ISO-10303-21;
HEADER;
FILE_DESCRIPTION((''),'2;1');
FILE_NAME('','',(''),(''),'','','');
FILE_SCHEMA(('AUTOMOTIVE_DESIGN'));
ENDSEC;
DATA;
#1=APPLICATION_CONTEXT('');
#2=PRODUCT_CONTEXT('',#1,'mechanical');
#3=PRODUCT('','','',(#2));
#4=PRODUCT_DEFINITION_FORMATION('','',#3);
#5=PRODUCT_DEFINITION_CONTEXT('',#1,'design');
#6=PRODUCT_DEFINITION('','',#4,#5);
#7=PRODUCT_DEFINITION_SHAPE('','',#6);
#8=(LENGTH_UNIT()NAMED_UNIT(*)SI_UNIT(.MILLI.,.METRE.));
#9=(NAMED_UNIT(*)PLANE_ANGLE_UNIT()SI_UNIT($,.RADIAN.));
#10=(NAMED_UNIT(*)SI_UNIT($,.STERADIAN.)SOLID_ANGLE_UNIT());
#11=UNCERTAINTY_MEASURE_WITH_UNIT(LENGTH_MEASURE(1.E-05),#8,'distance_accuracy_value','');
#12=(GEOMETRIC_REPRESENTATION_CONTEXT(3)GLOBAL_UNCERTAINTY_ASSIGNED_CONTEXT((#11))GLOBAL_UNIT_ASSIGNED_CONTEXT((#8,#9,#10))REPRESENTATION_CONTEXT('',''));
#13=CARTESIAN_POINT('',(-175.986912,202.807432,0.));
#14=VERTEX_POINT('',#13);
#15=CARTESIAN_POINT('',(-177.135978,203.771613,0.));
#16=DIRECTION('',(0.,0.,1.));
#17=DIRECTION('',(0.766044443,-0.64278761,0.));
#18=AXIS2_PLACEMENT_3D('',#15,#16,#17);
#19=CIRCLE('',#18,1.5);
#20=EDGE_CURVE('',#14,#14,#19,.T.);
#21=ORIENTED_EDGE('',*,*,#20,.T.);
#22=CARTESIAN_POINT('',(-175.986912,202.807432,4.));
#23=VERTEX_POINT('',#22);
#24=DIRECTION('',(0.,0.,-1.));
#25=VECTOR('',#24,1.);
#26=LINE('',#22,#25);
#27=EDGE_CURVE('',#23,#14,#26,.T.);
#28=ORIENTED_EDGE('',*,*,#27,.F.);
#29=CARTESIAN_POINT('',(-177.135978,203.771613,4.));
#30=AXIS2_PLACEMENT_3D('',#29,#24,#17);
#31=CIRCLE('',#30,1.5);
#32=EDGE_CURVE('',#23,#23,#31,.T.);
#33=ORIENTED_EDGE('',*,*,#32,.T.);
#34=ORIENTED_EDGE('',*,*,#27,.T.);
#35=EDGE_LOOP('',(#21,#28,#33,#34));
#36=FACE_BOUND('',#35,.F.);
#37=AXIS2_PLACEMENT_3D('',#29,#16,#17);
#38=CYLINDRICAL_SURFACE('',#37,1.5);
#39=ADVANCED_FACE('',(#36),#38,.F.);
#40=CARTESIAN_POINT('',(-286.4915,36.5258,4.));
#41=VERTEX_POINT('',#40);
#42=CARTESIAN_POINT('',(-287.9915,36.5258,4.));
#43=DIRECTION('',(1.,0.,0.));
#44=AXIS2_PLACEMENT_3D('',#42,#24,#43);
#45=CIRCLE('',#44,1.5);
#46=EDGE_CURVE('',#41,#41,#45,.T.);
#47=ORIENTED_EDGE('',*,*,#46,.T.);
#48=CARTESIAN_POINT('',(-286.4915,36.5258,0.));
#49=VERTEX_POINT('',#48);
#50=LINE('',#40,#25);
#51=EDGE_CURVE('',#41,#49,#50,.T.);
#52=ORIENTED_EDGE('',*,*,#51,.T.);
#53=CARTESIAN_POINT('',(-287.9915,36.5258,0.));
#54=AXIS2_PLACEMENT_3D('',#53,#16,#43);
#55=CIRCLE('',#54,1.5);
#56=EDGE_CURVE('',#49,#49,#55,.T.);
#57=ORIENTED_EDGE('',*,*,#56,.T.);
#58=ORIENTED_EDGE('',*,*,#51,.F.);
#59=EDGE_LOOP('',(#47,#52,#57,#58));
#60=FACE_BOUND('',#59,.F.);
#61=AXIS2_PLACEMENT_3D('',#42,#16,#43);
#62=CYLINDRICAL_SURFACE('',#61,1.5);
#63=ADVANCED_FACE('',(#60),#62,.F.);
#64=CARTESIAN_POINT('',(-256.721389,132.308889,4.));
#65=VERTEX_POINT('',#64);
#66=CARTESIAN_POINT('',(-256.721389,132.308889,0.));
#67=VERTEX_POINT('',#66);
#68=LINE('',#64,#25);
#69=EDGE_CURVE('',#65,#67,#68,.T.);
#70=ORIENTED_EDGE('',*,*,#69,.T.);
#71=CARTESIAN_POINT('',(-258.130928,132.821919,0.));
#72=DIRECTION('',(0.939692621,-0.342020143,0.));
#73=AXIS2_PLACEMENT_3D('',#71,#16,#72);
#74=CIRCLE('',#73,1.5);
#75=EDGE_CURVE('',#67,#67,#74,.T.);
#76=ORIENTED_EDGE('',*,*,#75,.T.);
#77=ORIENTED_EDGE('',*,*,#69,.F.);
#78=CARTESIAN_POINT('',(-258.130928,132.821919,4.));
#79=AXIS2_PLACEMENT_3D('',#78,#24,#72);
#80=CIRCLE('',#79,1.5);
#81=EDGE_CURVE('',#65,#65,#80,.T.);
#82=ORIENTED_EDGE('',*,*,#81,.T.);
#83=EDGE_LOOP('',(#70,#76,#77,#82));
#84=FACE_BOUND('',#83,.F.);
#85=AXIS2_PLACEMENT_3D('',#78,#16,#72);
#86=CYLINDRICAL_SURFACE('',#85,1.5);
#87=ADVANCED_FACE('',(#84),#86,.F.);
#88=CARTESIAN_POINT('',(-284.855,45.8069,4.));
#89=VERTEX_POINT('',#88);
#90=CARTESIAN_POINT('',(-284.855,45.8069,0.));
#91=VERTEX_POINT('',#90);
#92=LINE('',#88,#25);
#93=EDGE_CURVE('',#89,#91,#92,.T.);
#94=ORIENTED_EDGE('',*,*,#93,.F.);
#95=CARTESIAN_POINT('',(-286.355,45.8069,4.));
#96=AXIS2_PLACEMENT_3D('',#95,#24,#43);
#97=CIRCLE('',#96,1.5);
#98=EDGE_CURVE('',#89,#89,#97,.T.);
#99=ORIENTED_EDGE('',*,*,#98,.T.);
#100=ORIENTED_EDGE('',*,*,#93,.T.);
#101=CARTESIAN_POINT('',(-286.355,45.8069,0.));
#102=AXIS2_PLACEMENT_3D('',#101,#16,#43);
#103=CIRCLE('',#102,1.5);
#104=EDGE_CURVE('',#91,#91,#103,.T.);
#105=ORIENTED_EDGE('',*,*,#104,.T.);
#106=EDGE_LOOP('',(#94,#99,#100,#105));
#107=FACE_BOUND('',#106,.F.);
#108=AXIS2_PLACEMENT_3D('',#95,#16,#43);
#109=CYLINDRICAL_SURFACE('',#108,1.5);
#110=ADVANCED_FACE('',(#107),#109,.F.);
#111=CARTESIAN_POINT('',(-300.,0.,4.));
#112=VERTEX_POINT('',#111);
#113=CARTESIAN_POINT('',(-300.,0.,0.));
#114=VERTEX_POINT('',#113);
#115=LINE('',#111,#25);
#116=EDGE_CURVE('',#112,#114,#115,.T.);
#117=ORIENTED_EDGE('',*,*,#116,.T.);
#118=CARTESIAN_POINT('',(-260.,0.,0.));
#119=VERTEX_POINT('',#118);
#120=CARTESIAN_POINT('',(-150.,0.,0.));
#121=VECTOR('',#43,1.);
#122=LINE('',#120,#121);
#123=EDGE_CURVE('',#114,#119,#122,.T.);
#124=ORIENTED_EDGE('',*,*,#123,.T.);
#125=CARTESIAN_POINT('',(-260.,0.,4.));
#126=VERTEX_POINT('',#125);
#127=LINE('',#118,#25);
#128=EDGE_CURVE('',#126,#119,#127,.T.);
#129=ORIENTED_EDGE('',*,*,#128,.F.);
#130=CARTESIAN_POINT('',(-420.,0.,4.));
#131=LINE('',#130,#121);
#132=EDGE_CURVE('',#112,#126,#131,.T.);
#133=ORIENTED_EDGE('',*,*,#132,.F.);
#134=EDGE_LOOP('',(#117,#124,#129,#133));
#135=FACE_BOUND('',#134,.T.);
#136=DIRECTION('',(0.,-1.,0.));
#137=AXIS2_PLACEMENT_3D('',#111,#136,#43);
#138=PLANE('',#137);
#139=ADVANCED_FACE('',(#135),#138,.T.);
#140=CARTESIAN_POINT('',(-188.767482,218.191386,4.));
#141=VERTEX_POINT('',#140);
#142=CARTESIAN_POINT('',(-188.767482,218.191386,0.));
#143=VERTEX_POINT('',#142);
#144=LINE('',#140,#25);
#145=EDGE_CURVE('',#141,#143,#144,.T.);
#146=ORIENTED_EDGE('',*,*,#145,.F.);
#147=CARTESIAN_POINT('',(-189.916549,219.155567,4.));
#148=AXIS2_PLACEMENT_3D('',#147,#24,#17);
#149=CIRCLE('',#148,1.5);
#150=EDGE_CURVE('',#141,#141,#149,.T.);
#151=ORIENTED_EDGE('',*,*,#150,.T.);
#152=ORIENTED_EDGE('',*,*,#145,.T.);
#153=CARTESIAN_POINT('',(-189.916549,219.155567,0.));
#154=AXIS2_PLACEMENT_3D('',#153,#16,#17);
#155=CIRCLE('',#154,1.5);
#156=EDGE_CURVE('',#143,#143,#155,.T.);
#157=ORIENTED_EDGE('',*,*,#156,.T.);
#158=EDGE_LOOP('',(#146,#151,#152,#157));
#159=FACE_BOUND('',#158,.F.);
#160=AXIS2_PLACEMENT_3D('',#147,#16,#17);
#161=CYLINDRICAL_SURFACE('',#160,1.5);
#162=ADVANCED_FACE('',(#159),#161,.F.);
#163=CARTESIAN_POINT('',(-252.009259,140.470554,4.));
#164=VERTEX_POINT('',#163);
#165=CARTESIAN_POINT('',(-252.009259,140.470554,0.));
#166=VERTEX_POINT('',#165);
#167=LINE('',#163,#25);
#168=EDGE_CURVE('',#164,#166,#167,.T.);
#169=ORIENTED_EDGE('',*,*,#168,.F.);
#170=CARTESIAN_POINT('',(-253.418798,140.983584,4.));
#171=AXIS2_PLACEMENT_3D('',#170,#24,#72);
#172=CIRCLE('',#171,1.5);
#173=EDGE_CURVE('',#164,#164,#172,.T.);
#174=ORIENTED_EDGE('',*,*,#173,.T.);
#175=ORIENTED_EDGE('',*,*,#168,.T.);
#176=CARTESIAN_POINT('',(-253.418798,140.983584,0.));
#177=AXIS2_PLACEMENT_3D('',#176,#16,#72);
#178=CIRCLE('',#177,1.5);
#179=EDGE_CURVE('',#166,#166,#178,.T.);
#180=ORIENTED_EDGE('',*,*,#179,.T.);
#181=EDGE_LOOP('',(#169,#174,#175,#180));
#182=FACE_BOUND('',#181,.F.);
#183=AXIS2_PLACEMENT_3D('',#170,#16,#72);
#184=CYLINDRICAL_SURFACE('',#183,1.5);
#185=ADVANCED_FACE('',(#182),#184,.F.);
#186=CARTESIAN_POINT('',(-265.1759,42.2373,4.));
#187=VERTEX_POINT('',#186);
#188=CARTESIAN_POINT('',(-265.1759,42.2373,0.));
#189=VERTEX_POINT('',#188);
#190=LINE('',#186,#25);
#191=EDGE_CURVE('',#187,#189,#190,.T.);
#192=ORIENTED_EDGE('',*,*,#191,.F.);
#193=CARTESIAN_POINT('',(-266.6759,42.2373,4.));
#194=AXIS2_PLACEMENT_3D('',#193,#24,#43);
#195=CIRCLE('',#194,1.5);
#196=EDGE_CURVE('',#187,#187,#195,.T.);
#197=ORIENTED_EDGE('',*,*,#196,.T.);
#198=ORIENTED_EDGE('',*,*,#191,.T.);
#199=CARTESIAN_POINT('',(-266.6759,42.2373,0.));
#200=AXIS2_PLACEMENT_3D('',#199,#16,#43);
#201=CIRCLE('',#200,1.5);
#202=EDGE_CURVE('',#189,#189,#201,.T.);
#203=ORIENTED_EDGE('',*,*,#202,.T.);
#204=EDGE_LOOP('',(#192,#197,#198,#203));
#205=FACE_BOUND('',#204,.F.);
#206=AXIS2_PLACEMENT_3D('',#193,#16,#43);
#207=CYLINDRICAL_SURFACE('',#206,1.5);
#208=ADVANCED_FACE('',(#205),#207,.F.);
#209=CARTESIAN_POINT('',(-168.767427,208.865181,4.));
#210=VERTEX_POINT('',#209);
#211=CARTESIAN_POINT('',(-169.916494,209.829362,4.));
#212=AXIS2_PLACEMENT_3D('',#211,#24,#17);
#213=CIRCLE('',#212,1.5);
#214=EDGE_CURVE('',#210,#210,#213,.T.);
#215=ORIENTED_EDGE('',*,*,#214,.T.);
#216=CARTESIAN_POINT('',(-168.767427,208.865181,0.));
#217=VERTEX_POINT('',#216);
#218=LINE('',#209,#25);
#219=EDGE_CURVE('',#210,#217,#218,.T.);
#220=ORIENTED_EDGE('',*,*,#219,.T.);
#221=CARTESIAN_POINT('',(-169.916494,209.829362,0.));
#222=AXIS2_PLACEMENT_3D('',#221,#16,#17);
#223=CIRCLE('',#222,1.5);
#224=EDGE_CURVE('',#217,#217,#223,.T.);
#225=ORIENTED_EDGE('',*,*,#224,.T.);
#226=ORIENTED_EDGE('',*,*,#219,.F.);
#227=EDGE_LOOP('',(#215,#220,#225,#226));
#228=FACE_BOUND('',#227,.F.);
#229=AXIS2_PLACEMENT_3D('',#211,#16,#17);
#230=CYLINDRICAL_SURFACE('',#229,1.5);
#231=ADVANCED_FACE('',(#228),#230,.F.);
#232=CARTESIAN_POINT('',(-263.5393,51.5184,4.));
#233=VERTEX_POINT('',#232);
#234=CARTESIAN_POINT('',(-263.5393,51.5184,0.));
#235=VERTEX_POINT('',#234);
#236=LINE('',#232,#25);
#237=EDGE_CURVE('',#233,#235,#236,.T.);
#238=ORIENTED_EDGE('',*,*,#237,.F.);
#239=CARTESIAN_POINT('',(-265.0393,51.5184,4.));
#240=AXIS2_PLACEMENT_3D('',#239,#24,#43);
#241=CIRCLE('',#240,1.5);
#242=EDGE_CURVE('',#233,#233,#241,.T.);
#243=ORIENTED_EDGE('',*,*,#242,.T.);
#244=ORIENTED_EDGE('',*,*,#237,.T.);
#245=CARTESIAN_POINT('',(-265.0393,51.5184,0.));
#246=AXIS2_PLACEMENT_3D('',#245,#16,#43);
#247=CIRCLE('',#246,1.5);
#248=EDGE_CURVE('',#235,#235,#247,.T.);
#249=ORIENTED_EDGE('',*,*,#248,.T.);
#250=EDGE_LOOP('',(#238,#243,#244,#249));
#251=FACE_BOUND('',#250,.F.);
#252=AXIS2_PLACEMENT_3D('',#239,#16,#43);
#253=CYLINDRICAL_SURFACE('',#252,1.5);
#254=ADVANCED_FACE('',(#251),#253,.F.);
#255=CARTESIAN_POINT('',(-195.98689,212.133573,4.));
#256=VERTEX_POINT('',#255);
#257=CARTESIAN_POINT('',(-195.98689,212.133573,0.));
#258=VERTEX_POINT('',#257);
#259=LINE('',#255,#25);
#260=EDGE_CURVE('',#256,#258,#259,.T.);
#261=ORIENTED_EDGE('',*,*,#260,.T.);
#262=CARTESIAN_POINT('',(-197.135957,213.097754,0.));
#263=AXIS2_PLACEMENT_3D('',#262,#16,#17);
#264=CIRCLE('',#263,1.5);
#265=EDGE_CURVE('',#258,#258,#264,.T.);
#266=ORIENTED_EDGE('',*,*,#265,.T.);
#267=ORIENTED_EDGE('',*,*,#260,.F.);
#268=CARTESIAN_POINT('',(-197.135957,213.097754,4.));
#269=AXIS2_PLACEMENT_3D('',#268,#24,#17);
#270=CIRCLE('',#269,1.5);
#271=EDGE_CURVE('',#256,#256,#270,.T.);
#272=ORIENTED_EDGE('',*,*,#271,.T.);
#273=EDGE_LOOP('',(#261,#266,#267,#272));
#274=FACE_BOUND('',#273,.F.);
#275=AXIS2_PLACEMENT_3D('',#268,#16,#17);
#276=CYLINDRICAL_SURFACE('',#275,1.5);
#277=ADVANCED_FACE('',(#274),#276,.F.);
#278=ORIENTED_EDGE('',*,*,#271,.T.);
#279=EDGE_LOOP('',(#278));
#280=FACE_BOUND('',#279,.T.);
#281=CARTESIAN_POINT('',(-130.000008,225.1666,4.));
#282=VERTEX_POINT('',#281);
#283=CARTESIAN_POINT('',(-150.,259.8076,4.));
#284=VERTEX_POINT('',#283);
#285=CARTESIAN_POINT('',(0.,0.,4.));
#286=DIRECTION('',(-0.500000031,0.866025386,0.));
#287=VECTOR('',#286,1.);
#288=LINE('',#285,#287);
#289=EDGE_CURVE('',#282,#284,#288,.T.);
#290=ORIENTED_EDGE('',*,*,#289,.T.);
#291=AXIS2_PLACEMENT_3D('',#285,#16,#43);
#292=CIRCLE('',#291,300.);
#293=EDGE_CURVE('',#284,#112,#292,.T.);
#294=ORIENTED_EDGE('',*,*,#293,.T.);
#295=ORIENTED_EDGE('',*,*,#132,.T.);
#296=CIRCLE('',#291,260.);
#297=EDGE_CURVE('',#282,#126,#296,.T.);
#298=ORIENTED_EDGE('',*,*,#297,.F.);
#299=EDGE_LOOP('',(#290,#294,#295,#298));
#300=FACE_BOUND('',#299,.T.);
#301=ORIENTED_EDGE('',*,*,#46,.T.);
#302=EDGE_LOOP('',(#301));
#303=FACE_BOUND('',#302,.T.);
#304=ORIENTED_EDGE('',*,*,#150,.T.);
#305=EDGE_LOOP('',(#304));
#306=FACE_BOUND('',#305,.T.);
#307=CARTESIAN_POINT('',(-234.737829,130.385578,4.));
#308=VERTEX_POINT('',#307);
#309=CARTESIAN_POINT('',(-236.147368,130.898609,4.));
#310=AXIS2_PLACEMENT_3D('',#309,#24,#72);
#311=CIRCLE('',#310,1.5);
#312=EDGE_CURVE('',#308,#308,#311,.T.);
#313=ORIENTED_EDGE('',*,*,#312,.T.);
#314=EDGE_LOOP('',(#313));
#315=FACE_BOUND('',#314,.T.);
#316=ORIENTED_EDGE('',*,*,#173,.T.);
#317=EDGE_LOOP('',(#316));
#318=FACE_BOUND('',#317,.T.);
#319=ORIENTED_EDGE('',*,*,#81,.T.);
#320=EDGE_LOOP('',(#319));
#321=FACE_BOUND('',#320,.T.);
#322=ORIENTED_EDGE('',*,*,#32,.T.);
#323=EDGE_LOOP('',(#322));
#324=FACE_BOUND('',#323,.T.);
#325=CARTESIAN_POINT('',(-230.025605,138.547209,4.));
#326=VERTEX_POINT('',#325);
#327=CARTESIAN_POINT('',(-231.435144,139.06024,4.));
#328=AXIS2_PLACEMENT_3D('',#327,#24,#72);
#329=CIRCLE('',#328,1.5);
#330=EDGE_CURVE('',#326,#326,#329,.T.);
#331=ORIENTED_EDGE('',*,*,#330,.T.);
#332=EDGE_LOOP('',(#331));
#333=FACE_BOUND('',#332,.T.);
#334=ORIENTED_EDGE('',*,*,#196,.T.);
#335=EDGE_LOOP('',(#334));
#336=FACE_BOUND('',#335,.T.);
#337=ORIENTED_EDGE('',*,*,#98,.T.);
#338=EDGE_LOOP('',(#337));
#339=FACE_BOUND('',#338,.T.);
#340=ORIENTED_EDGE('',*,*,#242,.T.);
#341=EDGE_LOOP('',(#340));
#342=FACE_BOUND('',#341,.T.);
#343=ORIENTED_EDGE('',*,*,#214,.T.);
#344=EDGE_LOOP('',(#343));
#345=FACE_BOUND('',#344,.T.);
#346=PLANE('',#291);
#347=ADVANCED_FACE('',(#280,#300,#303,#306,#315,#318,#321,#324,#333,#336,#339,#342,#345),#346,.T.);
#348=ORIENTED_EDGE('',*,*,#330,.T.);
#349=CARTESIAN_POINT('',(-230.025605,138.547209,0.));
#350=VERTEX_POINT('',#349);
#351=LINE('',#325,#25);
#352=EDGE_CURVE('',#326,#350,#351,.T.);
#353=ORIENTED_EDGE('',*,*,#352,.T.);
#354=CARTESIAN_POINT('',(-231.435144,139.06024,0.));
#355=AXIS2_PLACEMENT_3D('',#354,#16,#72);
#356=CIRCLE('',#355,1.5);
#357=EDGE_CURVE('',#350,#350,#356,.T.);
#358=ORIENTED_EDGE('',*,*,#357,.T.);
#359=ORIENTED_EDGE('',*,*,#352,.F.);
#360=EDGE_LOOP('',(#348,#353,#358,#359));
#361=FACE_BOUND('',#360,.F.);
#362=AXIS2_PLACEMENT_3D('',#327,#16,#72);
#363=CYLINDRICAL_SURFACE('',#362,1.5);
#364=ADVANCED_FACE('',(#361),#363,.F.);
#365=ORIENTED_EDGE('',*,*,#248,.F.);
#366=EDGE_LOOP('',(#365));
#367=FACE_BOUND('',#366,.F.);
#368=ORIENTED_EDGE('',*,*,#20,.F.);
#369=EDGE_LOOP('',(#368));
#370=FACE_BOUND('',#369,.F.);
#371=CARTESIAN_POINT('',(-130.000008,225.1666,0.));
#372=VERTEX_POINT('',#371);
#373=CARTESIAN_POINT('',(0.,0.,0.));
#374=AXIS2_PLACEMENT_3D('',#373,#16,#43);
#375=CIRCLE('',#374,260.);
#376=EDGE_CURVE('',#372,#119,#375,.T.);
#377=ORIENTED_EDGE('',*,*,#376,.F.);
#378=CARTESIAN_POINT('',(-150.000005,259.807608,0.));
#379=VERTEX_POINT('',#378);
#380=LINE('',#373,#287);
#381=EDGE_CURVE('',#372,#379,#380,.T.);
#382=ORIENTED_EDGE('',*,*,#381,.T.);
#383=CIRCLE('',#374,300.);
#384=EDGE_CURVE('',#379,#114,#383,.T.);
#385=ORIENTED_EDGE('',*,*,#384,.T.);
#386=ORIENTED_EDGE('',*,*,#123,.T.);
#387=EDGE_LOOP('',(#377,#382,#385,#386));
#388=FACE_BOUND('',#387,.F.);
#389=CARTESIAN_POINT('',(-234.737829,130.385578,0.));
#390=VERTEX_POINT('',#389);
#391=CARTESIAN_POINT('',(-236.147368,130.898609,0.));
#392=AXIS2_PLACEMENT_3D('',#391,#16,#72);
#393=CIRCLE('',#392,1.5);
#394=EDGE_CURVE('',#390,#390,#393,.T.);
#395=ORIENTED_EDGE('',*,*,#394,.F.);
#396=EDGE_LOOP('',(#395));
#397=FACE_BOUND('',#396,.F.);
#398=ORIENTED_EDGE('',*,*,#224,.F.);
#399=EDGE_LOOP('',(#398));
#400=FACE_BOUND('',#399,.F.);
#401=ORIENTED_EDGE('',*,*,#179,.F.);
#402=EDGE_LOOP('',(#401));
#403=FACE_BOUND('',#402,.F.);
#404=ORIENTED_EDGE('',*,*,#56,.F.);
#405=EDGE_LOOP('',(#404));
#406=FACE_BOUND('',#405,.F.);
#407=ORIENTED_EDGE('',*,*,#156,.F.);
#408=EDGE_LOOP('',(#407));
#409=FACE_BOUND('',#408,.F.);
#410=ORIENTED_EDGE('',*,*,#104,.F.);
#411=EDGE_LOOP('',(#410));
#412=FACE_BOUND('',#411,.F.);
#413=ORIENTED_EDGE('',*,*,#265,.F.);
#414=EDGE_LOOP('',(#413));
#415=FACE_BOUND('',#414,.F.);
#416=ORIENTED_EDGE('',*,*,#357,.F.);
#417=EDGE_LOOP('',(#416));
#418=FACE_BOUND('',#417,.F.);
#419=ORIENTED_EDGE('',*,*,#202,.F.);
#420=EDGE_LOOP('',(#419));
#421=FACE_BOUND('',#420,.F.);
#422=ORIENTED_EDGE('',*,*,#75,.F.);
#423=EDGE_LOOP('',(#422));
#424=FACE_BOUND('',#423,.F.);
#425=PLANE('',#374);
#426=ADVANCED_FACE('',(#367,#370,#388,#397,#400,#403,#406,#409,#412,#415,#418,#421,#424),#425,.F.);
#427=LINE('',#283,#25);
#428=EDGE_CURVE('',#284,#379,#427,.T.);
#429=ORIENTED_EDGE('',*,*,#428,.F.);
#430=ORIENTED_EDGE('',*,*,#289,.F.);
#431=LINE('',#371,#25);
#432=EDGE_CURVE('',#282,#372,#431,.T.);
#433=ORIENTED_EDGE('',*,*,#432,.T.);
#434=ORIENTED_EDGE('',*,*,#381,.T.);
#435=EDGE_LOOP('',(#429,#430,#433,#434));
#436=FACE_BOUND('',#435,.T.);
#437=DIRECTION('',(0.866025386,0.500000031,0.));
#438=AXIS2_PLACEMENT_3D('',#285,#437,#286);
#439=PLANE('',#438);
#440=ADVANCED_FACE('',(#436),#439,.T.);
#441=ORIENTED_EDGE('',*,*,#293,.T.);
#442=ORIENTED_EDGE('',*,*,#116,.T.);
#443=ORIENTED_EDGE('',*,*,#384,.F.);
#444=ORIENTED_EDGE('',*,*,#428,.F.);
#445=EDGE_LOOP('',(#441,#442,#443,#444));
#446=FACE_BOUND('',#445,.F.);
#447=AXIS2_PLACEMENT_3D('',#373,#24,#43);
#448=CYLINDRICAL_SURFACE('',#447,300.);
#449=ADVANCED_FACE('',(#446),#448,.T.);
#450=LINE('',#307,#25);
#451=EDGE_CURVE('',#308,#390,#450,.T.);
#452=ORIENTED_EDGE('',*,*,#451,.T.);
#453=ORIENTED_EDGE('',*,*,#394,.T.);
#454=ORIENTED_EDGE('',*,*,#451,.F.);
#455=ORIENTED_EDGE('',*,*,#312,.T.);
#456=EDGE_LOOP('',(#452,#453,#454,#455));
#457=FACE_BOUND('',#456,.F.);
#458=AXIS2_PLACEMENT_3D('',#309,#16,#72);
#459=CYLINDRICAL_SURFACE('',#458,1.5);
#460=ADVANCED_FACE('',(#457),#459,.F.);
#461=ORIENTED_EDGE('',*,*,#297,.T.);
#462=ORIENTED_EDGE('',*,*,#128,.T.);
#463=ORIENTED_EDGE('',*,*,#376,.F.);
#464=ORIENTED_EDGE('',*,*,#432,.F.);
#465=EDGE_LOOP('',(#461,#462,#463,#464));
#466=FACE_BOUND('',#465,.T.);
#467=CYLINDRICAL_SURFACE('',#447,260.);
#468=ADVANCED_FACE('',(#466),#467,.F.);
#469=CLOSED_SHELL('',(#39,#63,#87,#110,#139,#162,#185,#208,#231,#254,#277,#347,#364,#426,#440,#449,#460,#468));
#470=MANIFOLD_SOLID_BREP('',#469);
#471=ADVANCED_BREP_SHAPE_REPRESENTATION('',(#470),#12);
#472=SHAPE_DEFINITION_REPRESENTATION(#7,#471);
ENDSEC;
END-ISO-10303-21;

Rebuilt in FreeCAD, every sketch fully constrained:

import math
import FreeCAD as App
import Part
import Sketcher
Q = App.Units.Quantity

doc = App.newDocument("Part")
body = doc.addObject("PartDesign::Body", "Body")

# Sketch on XY plane
sketch1 = body.newObject("Sketcher::SketchObject", "Sketch")
sketch1.AttachmentSupport = (doc.getObject("XY_Plane"), [""])
sketch1.MapMode = "FlatFace"
sketch1.addGeometry([
    Part.Circle(App.Vector(0, 0, 0), App.Vector(0, 0, 1), 300),
    Part.Circle(App.Vector(0, 0, 0), App.Vector(0, 0, 1), 260),
], False)
sketch1.addConstraint([
    Sketcher.Constraint("Coincident", 0, 3, -1, 1),
    Sketcher.Constraint("Coincident", 1, 3, -1, 1),
    Sketcher.Constraint("Diameter", 0, 600.0),
    Sketcher.Constraint("Diameter", 1, 520.0),
])
pad1 = body.newObject("PartDesign::Pad", "Pad")
pad1.Profile = sketch1
pad1.Length = 4

# Sketch on XY plane
sketch2 = body.newObject("Sketcher::SketchObject", "Sketch001")
sketch2.AttachmentSupport = (doc.getObject("XY_Plane"), [""])
sketch2.MapMode = "FlatFace"
sketch2.AttachmentOffset = App.Placement(App.Vector(0, 0, 4), App.Rotation())
sketch2.addGeometry([
    Part.LineSegment(App.Vector(-150, 259.8076, 0), App.Vector(0, 0, 0)),
    Part.LineSegment(App.Vector(0, 0, 0), App.Vector(-300, 0, 0)),
    Part.ArcOfCircle(Part.Circle(App.Vector(0, 0, 0), App.Vector(0, 0, 1), 300), math.radians(180), math.radians(480.000002)),
], False)
sketch2.addConstraint([
    Sketcher.Constraint("Coincident", 0, 2, 1, 1),
    Sketcher.Constraint("Coincident", 1, 2, 2, 1),
    Sketcher.Constraint("Coincident", 2, 2, 0, 1),
    Sketcher.Constraint("Horizontal", 1),
    Sketcher.Constraint("Coincident", 2, 3, -1, 1),
    Sketcher.Constraint("Coincident", 0, 2, -1, 1),
    Sketcher.Constraint("Angle", 0, Q("-60 deg")),
    Sketcher.Constraint("Radius", 2, 300.0),
])
pocket1 = body.newObject("PartDesign::Pocket", "Pocket")
pocket1.Profile = sketch2
pocket1.Length = 10

# Sketch on XY plane
sketch3 = body.newObject("Sketcher::SketchObject", "Sketch002")
sketch3.AttachmentSupport = (doc.getObject("XY_Plane"), [""])
sketch3.MapMode = "FlatFace"
sketch3.AttachmentOffset = App.Placement(App.Vector(0, 0, 4), App.Rotation())
sketch3.addGeometry([
    Part.Circle(App.Vector(-287.9915, 36.5258, 0), App.Vector(0, 0, 1), 1.5),
    Part.Circle(App.Vector(-266.6759, 42.2373, 0), App.Vector(0, 0, 1), 1.5),
    Part.Circle(App.Vector(-286.355, 45.8069, 0), App.Vector(0, 0, 1), 1.5),
    Part.Circle(App.Vector(-265.0393, 51.5184, 0), App.Vector(0, 0, 1), 1.5),
], False)
sketch3.addConstraint([
    Sketcher.Constraint("Equal", 0, 1),
    Sketcher.Constraint("Equal", 1, 2),
    Sketcher.Constraint("Equal", 2, 3),
    Sketcher.Constraint("Diameter", 0, 3.0),
    Sketcher.Constraint("DistanceX", 1, 3, -1, 1, 266.676),
    Sketcher.Constraint("DistanceX", 2, 3, -1, 1, 286.355),
    Sketcher.Constraint("DistanceY", -1, 1, 2, 3, 45.807),
    Sketcher.Constraint("DistanceY", 0, 3, 2, 3, 9.281),
    Sketcher.Constraint("DistanceY", 1, 3, 3, 3, 9.281),
    Sketcher.Constraint("DistanceX", 0, 3, -1, 1, 287.9915),
    Sketcher.Constraint("DistanceY", -1, 1, 1, 3, 42.2373),
    Sketcher.Constraint("DistanceX", 3, 3, -1, 1, 265.0393),
])
pocket2 = body.newObject("PartDesign::Pocket", "Pocket001")
pocket2.Profile = sketch3
pocket2.Type = "ThroughAll"
doc.recompute()

polarpattern = body.newObject("PartDesign::PolarPattern", "PolarPattern")
polarpattern.Originals = [pocket2]
polarpattern.Axis = (doc.getObject("Z_Axis"), [""])
polarpattern.Angle = 160
polarpattern.Occurrences = 9
polarpattern.Reversed = True
body.Tip = polarpattern

doc.recompute()
